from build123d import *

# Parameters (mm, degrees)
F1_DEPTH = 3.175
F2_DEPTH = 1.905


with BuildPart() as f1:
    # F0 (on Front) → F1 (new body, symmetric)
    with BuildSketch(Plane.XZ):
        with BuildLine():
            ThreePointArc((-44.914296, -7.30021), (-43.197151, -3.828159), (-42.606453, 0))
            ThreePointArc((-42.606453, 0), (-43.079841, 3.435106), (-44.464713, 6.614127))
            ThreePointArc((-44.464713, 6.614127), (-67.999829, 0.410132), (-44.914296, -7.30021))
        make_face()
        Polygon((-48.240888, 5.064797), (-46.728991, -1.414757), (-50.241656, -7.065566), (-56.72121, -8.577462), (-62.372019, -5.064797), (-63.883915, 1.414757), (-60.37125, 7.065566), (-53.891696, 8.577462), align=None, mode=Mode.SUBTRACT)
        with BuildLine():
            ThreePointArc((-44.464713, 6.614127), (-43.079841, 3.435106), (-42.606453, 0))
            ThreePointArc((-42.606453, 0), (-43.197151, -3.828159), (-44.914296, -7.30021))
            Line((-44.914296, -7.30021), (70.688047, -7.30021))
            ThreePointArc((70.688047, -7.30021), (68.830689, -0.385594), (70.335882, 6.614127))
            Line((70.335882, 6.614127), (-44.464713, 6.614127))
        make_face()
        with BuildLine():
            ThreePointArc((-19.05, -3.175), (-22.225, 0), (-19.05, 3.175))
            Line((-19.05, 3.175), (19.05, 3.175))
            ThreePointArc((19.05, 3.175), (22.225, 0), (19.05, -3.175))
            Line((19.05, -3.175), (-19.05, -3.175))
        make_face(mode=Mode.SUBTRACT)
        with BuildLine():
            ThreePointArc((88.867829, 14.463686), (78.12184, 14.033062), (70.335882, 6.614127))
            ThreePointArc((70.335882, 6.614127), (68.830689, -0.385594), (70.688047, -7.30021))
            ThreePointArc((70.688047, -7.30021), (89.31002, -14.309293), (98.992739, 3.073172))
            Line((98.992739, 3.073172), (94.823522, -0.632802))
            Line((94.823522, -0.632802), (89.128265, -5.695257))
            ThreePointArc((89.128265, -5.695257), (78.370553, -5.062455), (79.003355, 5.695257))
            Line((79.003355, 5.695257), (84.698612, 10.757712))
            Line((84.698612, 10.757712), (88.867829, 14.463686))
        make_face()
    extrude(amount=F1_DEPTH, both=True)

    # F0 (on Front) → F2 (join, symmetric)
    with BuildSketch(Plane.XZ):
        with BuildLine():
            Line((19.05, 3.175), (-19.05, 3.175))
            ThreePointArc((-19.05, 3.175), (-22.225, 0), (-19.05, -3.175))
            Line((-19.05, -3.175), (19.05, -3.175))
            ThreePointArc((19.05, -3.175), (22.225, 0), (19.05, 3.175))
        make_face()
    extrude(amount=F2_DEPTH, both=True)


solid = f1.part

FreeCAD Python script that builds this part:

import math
import FreeCAD as App
import Part
import Sketcher

V = App.Vector
Q = App.Units.Quantity

doc = App.newDocument("Part")
params = doc.addObject("Spreadsheet::Sheet", "Params")
for row, (alias, value) in enumerate([
    ("sketch1_radius", "0.5 in"),
    ("sketch1_radius2", "0.6 in"),
    ("sketch1_radius3", "0.3 in"),
    ("sketch1_width", "1.5 in"),
    ("sketch1_radius4", "0.125 in"),
    ("pad1_length", "0.25 in"),
    ("sketch2_width", "1.5 in"),
    ("sketch2_radius", "0.125 in"),
    ("pad2_length", "0.15 in"),
], start=1):
    params.set(f"A{row}", alias)
    params.set(f"B{row}", "=" + value)
    params.setAlias(f"B{row}", alias)

body = doc.addObject("PartDesign::Body", "Body")

sketch1 = doc.addObject("Sketcher::SketchObject", "Sketch")
body.addObject(sketch1)
sketch1.AttachmentSupport = (doc.XZ_Plane, [""])
sketch1.MapMode = "FlatFace"
sketch1.addGeometry(Part.ArcOfCircle(Part.Circle(V(-55.3, 0, 0), V(0, 0, 1), 12.7), math.radians(31), math.radians(325)), False)
sketch1.addGeometry(Part.LineSegment(V(-44.9, -7.3, 0), V(70.7, -7.3, 0)), False)
sketch1.addGeometry(Part.ArcOfCircle(Part.Circle(V(84.1, 0, 0), V(0, 0, 1), 15.2), math.radians(-151), math.radians(12)), False)
sketch1.addGeometry(Part.LineSegment(V(99, 3.1, 0), V(94.8, -0.6, 0)), False)
sketch1.addGeometry(Part.LineSegment(V(94.8, -0.6, 0), V(89.1, -5.7, 0)), False)
sketch1.addGeometry(Part.ArcOfCircle(Part.Circle(V(84.1, 0, 0), V(0, 0, 1), 7.6), math.radians(132), math.radians(312)), False)
sketch1.addGeometry(Part.LineSegment(V(79, 5.7, 0), V(84.7, 10.8, 0)), False)
sketch1.addGeometry(Part.LineSegment(V(84.7, 10.8, 0), V(88.9, 14.5, 0)), False)
sketch1.addGeometry(Part.ArcOfCircle(Part.Circle(V(84.1, 0, 0), V(0, 0, 1), 15.2), math.radians(72), math.radians(154)), False)
sketch1.addGeometry(Part.LineSegment(V(70.3, 6.6, 0), V(-44.5, 6.6, 0)), False)
sketch1.addGeometry(Part.LineSegment(V(-53.9, 8.6, 0), V(-48.2, 5.1, 0)), False)
sketch1.addGeometry(Part.LineSegment(V(-48.2, 5.1, 0), V(-46.7, -1.4, 0)), False)
sketch1.addGeometry(Part.LineSegment(V(-46.7, -1.4, 0), V(-50.2, -7.1, 0)), False)
sketch1.addGeometry(Part.LineSegment(V(-50.2, -7.1, 0), V(-56.7, -8.6, 0)), False)
sketch1.addGeometry(Part.LineSegment(V(-56.7, -8.6, 0), V(-62.4, -5.1, 0)), False)
sketch1.addGeometry(Part.LineSegment(V(-62.4, -5.1, 0), V(-63.9, 1.4, 0)), False)
sketch1.addGeometry(Part.LineSegment(V(-63.9, 1.4, 0), V(-60.4, 7.1, 0)), False)
sketch1.addGeometry(Part.LineSegment(V(-60.4, 7.1, 0), V(-53.9, 8.6, 0)), False)
sketch1.addGeometry(Part.LineSegment(V(19.1, -3.2, 0), V(-19.1, -3.2, 0)), False)
sketch1.addGeometry(Part.ArcOfCircle(Part.Circle(V(-19.1, 0, 0), V(0, 0, 1), 3.2), math.radians(90), math.radians(270)), False)
sketch1.addGeometry(Part.LineSegment(V(-19.1, 3.2, 0), V(19.1, 3.2, 0)), False)
sketch1.addGeometry(Part.ArcOfCircle(Part.Circle(V(19.1, 0, 0), V(0, 0, 1), 3.2), math.radians(-90), math.radians(90)), False)
sketch1.addConstraint(Sketcher.Constraint("Coincident", 0, 2, 1, 1))
sketch1.addConstraint(Sketcher.Constraint("Coincident", 1, 2, 2, 1))
sketch1.addConstraint(Sketcher.Constraint("Coincident", 2, 2, 3, 1))
sketch1.addConstraint(Sketcher.Constraint("Coincident", 3, 2, 4, 1))
sketch1.addConstraint(Sketcher.Constraint("Tangent", 4, 2, 5, 2))
sketch1.addConstraint(Sketcher.Constraint("Tangent", 5, 1, 6, 1))
sketch1.addConstraint(Sketcher.Constraint("Coincident", 6, 2, 7, 1))
sketch1.addConstraint(Sketcher.Constraint("Coincident", 7, 2, 8, 1))
sketch1.addConstraint(Sketcher.Constraint("Coincident", 8, 2, 9, 1))
sketch1.addConstraint(Sketcher.Constraint("Coincident", 9, 2, 0, 1))
sketch1.addConstraint(Sketcher.Constraint("Coincident", 10, 2, 11, 1))
sketch1.addConstraint(Sketcher.Constraint("Coincident", 11, 2, 12, 1))
sketch1.addConstraint(Sketcher.Constraint("Coincident", 12, 2, 13, 1))
sketch1.addConstraint(Sketcher.Constraint("Coincident", 13, 2, 14, 1))
sketch1.addConstraint(Sketcher.Constraint("Coincident", 14, 2, 15, 1))
sketch1.addConstraint(Sketcher.Constraint("Coincident", 15, 2, 16, 1))
sketch1.addConstraint(Sketcher.Constraint("Coincident", 16, 2, 17, 1))
sketch1.addConstraint(Sketcher.Constraint("Coincident", 17, 2, 10, 1))
sketch1.addConstraint(Sketcher.Constraint("Tangent", 18, 2, 19, 2))
sketch1.addConstraint(Sketcher.Constraint("Tangent", 19, 1, 20, 1))
sketch1.addConstraint(Sketcher.Constraint("Tangent", 20, 2, 21, 2))
sketch1.addConstraint(Sketcher.Constraint("Tangent", 21, 1, 18, 1))
sketch1.addConstraint(Sketcher.Constraint("Horizontal", 1))
sketch1.addConstraint(Sketcher.Constraint("Horizontal", 9))
sketch1.addConstraint(Sketcher.Constraint("Horizontal", 18))
sketch1.addConstraint(Sketcher.Constraint("Horizontal", 20))
sketch1.addConstraint(Sketcher.Constraint("Coincident", 5, 3, 2, 3))
sketch1.addConstraint(Sketcher.Constraint("Coincident", 8, 3, 2, 3))
sketch1.addConstraint(Sketcher.Constraint("Equal", 2, 8))
sketch1.addConstraint(Sketcher.Constraint("Symmetric", 19, 3, 21, 3, -1, 1))
sketch1.addConstraint(Sketcher.Constraint("PointOnObject", 0, 3, -1))
sketch1.addConstraint(Sketcher.Constraint("PointOnObject", 2, 3, -1))
sketch1.addConstraint(Sketcher.Constraint("Parallel", 3, 4))
sketch1.addConstraint(Sketcher.Constraint("Parallel", 4, 6))
sketch1.addConstraint(Sketcher.Constraint("Parallel", 6, 7))
sketch1.addConstraint(Sketcher.Constraint("Perpendicular", 10, 12))
sketch1.addConstraint(Sketcher.Constraint("Perpendicular", 11, 13))
sketch1.addConstraint(Sketcher.Constraint("Perpendicular", 12, 14))
sketch1.addConstraint(Sketcher.Constraint("Perpendicular", 13, 15))
sketch1.addConstraint(Sketcher.Constraint("Perpendicular", 14, 16))
sketch1.addConstraint(Sketcher.Constraint("Perpendicular", 15, 17))
sketch1.addConstraint(Sketcher.Constraint("Equal", 4, 6))
sketch1.addConstraint(Sketcher.Constraint("Equal", 10, 11))
sketch1.addConstraint(Sketcher.Constraint("Equal", 11, 12))
sketch1.addConstraint(Sketcher.Constraint("Equal", 12, 13))
sketch1.addConstraint(Sketcher.Constraint("Equal", 13, 14))
sketch1.addConstraint(Sketcher.Constraint("Equal", 14, 15))
sketch1.addConstraint(Sketcher.Constraint("Radius", 0, Q("0.5 in")))
sketch1.addConstraint(Sketcher.Constraint("Radius", 2, Q("0.6 in")))
sketch1.addConstraint(Sketcher.Constraint("Radius", 5, Q("0.3 in")))
sketch1.addConstraint(Sketcher.Constraint("DistanceX", 18, 2, 18, 1, Q("1.5 in")))
sketch1.addConstraint(Sketcher.Constraint("Radius", 19, Q("0.125 in")))
sketch1.addConstraint(Sketcher.Constraint("Distance", 4, Q("0.3 in")))
sketch1.addConstraint(Sketcher.Constraint("DistanceX", 0, 2, 9, 2, Q("0.0177001 in")))
sketch1.addConstraint(Sketcher.Constraint("DistanceY", 3, 2, -1, 1, Q("0.632802 mm")))
sketch1.addConstraint(Sketcher.Constraint("DistanceX", 1, 1, 1, 2, Q("115.602343 mm")))
sketch1.addConstraint(Sketcher.Constraint("DistanceX", 9, 2, 9, 1, Q("114.800595 mm")))
sketch1.addConstraint(Sketcher.Constraint("DistanceX", -1, 1, 2, 3, Q("84.06581 mm")))
sketch1.addConstraint(Sketcher.Constraint("DistanceX", 11, 2, -1, 1, Q("46.728991 mm")))
sketch1.addConstraint(Sketcher.Constraint("DistanceX", 13, 2, -1, 1, Q("56.72121 mm")))
sketch1.addConstraint(Sketcher.Constraint("DistanceX", 14, 2, -1, 1, Q("62.372019 mm")))
sketch1.addConstraint(Sketcher.Constraint("DistanceX", 16, 2, -1, 1, Q("60.37125 mm")))
sketch1.addConstraint(Sketcher.Constraint("DistanceY", 10, 2, 9, 2, Q("1.54933 mm")))
sketch1.setExpression("Constraints[47]", "Params.sketch1_radius")
sketch1.setExpression("Constraints[48]", "Params.sketch1_radius2")
sketch1.setExpression("Constraints[49]", "Params.sketch1_radius3")
sketch1.setExpression("Constraints[50]", "Params.sketch1_width")
sketch1.setExpression("Constraints[51]", "Params.sketch1_radius4")
pad1 = doc.addObject("PartDesign::Pad", "Pad")
body.addObject(pad1)
pad1.Profile = sketch1
pad1.setExpression("Length", "Params.pad1_length")
pad1.Midplane = True

sketch2 = doc.addObject("Sketcher::SketchObject", "Sketch001")
body.addObject(sketch2)
sketch2.AttachmentSupport = (doc.XZ_Plane, [""])
sketch2.MapMode = "FlatFace"
sketch2.addGeometry(Part.LineSegment(V(19.1, 3.2, 0), V(-19.1, 3.2, 0)), False)
sketch2.addGeometry(Part.ArcOfCircle(Part.Circle(V(-19.1, 0, 0), V(0, 0, 1), 3.2), math.radians(90), math.radians(270)), False)
sketch2.addGeometry(Part.LineSegment(V(-19.1, -3.2, 0), V(19.1, -3.2, 0)), False)
sketch2.addGeometry(Part.ArcOfCircle(Part.Circle(V(19.1, 0, 0), V(0, 0, 1), 3.2), math.radians(-90), math.radians(90)), False)
sketch2.addConstraint(Sketcher.Constraint("Tangent", 0, 2, 1, 1))
sketch2.addConstraint(Sketcher.Constraint("Tangent", 1, 2, 2, 1))
sketch2.addConstraint(Sketcher.Constraint("Tangent", 2, 2, 3, 1))
sketch2.addConstraint(Sketcher.Constraint("Tangent", 3, 2, 0, 1))
sketch2.addConstraint(Sketcher.Constraint("Horizontal", 0))
sketch2.addConstraint(Sketcher.Constraint("Horizontal", 2))
sketch2.addConstraint(Sketcher.Constraint("Symmetric", 1, 3, 3, 3, -1, 1))
sketch2.addConstraint(Sketcher.Constraint("DistanceX", 0, 2, 0, 1, Q("1.5 in")))
sketch2.addConstraint(Sketcher.Constraint("Radius", 1, Q("0.125 in")))
sketch2.setExpression("Constraints[7]", "Params.sketch2_width")
sketch2.setExpression("Constraints[8]", "Params.sketch2_radius")
pad2 = doc.addObject("PartDesign::Pad", "Pad001")
body.addObject(pad2)
pad2.Profile = sketch2
pad2.setExpression("Length", "Params.pad2_length")
pad2.Midplane = True

doc.recompute()
